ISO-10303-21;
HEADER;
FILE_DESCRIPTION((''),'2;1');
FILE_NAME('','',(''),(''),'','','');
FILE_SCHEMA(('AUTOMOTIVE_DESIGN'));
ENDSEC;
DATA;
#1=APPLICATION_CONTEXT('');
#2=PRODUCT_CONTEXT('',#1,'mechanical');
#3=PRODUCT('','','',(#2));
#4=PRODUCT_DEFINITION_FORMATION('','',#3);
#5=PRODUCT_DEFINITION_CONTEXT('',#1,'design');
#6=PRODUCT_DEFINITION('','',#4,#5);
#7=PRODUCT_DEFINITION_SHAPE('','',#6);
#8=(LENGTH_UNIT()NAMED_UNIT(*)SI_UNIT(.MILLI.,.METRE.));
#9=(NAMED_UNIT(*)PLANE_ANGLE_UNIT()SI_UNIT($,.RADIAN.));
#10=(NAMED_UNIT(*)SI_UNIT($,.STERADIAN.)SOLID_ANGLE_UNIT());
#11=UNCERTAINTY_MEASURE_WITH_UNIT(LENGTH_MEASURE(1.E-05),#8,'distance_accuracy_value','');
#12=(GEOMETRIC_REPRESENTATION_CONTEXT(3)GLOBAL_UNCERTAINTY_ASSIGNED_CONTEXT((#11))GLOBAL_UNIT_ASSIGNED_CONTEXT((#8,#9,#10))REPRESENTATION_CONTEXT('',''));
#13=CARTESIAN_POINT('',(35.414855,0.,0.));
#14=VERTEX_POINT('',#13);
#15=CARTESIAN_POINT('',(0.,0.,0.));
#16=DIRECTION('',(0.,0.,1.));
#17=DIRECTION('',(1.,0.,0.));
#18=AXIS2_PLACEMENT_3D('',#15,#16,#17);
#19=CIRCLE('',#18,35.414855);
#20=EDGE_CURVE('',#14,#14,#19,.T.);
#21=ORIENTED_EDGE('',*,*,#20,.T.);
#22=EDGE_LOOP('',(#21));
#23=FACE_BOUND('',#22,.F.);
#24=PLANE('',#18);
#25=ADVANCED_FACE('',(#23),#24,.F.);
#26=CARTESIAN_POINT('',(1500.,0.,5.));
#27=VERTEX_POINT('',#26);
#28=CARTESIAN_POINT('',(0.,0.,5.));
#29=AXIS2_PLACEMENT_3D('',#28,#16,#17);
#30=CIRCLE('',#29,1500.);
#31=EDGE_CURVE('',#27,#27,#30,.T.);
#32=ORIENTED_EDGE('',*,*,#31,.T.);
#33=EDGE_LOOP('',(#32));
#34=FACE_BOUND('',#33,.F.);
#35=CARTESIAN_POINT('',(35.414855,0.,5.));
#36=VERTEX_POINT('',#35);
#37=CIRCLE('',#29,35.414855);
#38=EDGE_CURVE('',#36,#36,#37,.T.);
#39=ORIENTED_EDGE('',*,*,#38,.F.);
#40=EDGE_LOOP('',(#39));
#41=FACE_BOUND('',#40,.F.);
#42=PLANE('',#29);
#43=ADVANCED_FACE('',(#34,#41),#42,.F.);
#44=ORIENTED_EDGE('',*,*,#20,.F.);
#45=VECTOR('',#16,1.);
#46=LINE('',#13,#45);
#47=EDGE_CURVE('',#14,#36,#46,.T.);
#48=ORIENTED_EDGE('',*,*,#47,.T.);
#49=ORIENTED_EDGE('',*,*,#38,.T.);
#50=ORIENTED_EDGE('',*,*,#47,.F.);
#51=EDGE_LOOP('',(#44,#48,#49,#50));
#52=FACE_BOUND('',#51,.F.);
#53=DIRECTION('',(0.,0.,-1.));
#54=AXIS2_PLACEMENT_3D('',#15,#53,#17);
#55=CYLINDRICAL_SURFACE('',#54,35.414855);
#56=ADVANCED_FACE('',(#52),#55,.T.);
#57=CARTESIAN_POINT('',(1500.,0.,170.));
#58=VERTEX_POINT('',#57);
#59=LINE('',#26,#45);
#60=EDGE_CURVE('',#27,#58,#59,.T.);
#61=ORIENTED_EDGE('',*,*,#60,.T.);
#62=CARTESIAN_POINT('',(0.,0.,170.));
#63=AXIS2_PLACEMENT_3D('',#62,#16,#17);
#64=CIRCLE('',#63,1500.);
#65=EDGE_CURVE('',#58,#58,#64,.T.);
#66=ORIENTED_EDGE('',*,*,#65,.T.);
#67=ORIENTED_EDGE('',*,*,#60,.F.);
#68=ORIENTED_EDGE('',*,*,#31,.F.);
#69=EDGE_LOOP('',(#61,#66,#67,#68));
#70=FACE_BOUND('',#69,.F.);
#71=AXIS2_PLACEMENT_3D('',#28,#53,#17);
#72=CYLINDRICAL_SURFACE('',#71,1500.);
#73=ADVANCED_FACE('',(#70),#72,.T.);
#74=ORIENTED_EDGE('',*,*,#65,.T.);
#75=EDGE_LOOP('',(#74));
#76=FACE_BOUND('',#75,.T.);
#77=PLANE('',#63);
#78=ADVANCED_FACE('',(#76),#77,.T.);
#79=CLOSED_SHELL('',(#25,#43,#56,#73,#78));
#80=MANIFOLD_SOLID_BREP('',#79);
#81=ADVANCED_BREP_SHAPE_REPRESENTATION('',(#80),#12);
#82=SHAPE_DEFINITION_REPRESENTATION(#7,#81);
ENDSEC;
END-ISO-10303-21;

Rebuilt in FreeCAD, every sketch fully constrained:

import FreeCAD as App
import Part
import Sketcher

V = App.Vector
Q = App.Units.Quantity

doc = App.newDocument("Part")
params = doc.addObject("Spreadsheet::Sheet", "Params")
for row, (alias, value) in enumerate([
    ("pad1_length", "5 mm"),
    ("sketch2_diameter", "3000 mm"),
    ("pad2_length", "165 mm"),
], start=1):
    params.set(f"A{row}", alias)
    params.set(f"B{row}", "=" + value)
    params.setAlias(f"B{row}", alias)

body = doc.addObject("PartDesign::Body", "Body")

# Sketch on XY plane
sketch1 = doc.addObject("Sketcher::SketchObject", "Sketch")
body.addObject(sketch1)
sketch1.AttachmentSupport = (doc.XY_Plane, [""])
sketch1.MapMode = "FlatFace"
sketch1.addGeometry(Part.Circle(V(0, 0, 0), V(0, 0, 1), 35), False)
sketch1.addConstraint(Sketcher.Constraint("Coincident", 0, 3, -1, 1))
sketch1.addConstraint(Sketcher.Constraint("Diameter", 0, Q("70.82971 mm")))
pad1 = doc.addObject("PartDesign::Pad", "Pad")
body.addObject(pad1)
pad1.Profile = sketch1
pad1.setExpression("Length", "Params.pad1_length")

# Sketch on XY plane
sketch2 = doc.addObject("Sketcher::SketchObject", "Sketch001")
body.addObject(sketch2)
sketch2.AttachmentSupport = (doc.XY_Plane, [""])
sketch2.MapMode = "FlatFace"
sketch2.AttachmentOffset = App.Placement(V(0, 0, 5), App.Rotation())
sketch2.addGeometry(Part.Circle(V(0, 0, 0), V(0, 0, 1), 1500), False)
sketch2.addConstraint(Sketcher.Constraint("Coincident", 0, 3, -1, 1))
sketch2.addConstraint(Sketcher.Constraint("Diameter", 0, Q("3000 mm")))
sketch2.setExpression("Constraints[1]", "Params.sketch2_diameter")
pad2 = doc.addObject("PartDesign::Pad", "Pad001")
body.addObject(pad2)
pad2.Profile = sketch2
pad2.setExpression("Length", "Params.pad2_length")

doc.recompute()
